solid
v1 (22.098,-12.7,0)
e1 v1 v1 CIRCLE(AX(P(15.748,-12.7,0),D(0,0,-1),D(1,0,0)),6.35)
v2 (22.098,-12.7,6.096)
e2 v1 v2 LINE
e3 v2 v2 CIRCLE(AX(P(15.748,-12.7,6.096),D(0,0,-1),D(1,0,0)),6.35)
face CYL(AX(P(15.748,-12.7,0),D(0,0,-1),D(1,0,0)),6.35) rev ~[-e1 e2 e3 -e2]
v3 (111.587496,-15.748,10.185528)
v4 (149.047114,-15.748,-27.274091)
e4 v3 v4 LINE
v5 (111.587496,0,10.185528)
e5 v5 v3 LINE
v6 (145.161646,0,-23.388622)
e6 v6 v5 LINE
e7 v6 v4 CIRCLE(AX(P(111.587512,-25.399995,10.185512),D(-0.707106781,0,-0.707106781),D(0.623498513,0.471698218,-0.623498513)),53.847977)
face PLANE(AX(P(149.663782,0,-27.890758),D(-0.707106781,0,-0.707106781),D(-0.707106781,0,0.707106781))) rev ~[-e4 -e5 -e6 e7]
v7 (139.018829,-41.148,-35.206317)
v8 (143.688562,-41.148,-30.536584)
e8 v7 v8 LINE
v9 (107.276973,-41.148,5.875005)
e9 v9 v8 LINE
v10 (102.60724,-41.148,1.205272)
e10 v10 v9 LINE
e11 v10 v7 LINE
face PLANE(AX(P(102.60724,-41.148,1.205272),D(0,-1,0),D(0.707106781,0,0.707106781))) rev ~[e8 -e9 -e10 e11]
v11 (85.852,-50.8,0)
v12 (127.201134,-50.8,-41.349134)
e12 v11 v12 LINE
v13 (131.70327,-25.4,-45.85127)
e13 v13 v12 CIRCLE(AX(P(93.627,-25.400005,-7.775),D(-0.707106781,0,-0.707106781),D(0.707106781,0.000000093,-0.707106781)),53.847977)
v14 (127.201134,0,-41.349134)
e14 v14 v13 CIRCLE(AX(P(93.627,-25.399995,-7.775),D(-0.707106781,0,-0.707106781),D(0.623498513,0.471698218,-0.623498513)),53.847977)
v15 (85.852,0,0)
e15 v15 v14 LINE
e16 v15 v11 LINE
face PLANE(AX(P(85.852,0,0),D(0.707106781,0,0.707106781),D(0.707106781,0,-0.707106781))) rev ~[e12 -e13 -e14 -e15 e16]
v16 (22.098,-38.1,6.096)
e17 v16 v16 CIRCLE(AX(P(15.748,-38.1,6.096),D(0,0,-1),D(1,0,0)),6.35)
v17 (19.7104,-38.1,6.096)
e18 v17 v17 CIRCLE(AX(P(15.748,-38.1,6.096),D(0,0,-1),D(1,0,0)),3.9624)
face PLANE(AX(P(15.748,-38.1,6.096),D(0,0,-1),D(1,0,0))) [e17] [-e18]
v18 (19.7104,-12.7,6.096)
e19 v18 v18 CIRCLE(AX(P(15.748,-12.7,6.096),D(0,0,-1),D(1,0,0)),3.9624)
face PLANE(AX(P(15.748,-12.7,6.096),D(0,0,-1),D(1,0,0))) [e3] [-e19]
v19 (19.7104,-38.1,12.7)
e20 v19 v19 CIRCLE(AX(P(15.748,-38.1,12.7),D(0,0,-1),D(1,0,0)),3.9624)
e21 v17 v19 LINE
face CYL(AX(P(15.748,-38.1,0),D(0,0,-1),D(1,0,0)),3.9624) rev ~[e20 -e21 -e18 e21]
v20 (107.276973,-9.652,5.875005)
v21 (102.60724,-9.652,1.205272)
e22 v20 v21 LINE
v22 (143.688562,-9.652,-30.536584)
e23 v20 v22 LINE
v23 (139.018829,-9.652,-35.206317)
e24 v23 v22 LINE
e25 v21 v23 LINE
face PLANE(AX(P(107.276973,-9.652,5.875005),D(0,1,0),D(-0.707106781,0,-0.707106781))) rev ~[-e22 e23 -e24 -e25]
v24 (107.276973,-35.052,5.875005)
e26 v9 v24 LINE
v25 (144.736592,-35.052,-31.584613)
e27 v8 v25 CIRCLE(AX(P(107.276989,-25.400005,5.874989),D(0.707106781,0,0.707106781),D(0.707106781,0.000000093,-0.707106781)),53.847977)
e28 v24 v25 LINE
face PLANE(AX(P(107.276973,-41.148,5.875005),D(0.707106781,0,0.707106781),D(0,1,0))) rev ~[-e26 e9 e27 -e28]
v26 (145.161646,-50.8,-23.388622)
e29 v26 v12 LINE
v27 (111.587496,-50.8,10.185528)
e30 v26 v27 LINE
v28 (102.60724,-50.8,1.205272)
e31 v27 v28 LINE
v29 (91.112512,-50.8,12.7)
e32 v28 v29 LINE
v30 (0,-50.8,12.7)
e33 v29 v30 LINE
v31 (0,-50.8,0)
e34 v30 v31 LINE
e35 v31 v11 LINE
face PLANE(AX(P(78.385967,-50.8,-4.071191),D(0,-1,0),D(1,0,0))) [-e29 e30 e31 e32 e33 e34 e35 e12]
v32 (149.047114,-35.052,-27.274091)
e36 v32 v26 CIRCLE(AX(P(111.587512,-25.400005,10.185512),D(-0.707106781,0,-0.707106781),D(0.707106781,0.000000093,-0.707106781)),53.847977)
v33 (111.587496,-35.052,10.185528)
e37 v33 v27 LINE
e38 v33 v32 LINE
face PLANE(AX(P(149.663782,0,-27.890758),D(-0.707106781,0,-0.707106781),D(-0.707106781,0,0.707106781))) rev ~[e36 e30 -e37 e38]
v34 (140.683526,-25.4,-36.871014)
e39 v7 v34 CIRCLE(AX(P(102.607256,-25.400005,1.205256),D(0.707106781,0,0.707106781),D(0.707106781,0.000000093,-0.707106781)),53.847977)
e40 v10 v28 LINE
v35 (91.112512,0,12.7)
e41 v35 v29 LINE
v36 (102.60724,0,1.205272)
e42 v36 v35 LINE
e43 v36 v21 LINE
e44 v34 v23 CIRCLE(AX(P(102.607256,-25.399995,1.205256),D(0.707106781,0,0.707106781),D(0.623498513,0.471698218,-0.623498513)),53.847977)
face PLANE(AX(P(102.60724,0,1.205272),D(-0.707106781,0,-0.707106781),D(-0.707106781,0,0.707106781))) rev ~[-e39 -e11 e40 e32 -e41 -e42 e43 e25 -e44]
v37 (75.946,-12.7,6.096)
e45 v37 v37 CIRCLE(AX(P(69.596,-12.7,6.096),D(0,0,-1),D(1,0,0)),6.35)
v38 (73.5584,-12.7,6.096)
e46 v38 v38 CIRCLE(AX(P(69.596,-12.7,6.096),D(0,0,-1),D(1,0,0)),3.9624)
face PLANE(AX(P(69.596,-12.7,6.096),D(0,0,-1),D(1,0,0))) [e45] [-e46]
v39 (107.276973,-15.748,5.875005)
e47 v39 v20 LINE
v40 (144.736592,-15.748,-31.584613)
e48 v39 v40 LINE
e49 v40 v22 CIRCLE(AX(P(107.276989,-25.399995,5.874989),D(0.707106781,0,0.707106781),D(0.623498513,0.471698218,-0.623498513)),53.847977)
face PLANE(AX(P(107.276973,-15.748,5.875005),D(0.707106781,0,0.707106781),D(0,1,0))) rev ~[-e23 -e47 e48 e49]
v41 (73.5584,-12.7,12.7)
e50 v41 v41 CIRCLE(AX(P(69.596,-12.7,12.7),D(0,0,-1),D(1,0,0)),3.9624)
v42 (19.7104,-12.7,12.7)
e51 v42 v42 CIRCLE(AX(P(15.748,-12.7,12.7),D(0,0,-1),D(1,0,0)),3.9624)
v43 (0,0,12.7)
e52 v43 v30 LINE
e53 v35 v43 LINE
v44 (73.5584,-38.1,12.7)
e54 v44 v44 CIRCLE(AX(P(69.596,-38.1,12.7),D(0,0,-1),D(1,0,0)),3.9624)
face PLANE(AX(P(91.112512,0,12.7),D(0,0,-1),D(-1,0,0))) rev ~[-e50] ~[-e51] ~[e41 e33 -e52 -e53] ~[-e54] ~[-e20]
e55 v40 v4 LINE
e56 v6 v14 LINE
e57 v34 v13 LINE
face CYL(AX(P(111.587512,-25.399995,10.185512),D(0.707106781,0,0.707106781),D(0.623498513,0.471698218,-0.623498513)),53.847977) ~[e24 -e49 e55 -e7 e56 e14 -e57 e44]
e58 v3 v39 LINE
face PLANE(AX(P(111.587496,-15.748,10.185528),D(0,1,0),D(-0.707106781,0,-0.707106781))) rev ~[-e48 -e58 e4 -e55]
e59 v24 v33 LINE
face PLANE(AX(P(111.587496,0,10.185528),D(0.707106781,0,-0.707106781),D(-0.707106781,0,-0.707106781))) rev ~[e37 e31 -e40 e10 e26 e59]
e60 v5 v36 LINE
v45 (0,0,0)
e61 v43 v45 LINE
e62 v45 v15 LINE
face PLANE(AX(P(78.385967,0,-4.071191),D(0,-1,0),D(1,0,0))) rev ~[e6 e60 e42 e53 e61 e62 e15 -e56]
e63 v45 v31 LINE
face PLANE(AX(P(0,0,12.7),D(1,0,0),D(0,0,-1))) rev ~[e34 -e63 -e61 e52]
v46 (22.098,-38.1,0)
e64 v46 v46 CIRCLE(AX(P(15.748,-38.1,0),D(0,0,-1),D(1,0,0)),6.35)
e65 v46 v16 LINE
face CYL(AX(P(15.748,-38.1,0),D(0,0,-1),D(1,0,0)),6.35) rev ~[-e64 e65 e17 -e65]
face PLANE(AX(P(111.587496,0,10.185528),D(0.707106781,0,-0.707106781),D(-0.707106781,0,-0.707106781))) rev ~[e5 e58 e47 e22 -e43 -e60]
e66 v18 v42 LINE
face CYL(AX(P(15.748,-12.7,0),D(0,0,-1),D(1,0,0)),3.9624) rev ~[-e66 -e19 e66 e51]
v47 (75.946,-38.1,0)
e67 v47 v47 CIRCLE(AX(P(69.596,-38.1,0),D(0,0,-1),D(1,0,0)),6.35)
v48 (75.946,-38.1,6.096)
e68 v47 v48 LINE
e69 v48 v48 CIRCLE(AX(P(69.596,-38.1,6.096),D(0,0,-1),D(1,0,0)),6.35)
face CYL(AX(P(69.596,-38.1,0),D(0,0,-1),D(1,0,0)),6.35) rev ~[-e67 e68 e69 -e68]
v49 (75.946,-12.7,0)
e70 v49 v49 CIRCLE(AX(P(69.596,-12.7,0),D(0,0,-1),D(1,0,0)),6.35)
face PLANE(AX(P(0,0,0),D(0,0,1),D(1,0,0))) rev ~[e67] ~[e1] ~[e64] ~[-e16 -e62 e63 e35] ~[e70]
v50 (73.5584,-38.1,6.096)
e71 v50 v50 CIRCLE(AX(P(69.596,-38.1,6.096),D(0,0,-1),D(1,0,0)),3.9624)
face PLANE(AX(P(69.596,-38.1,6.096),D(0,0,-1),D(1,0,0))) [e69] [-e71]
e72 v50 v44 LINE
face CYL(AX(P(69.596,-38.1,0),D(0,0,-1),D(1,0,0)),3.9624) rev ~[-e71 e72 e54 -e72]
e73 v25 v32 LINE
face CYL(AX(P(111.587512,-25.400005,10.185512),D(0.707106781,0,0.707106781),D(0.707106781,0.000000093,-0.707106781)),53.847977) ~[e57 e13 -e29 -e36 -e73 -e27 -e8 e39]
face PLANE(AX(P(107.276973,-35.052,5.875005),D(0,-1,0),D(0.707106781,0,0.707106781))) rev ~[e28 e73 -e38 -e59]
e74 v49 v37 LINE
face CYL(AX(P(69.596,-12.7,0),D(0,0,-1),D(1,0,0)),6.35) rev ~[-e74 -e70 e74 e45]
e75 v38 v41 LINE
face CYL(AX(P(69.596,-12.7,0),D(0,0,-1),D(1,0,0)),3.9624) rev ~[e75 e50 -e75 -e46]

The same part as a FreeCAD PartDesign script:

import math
import FreeCAD as App
import Part
import Sketcher

V = App.Vector
Q = App.Units.Quantity


def add_polygon(sketch, points):
    """Adds a closed chain of lines whose ends are joined by coincident constraints."""
    first, n = sketch.GeometryCount, len(points)
    for a, b in zip(points, points[1:] + points[:1]):
        sketch.addGeometry(Part.LineSegment(App.Vector(*a, 0), App.Vector(*b, 0)), False)
    for i in range(n):
        sketch.addConstraint(Sketcher.Constraint("Coincident", first + i, 2, first + (i + 1) % n, 1))

doc = App.newDocument("Part")
body = doc.addObject("PartDesign::Body", "Body")

# Sketch on XZ plane
sketch1 = body.newObject("Sketcher::SketchObject", "Sketch")
sketch1.AttachmentSupport = (doc.getObject("XZ_Plane"), [""])
sketch1.MapMode = "FlatFace"
add_polygon(sketch1, [(0, 13), (0, 0), (86, 0), (132, -46), (150, -28), (112, 10), (103, 1), (91, 13)])  # lines 0-7
sketch1.addConstraint([
    Sketcher.Constraint("Vertical", 0),
    Sketcher.Constraint("Horizontal", 1),
    Sketcher.Constraint("Horizontal", 7),
    Sketcher.Constraint("Coincident", 0, 2, -1, 1),
    Sketcher.Constraint("Perpendicular", 2, 3),
    Sketcher.Constraint("Perpendicular", 3, 4),
    Sketcher.Constraint("Perpendicular", 4, 5),
    Sketcher.Constraint("Perpendicular", 5, 6),
    Sketcher.Constraint("Distance", 3, Q("1 in")),
    Sketcher.Constraint("DistanceY", 0, 2, 0, 1, Q("0.5 in")),
    Sketcher.Constraint("Angle", 2, Q("-45 deg")),
    Sketcher.Constraint("Distance", 5, Q("0.5 in")),
    Sketcher.Constraint("DistanceX", 1, 1, 1, 2, Q("3.38 in")),
    Sketcher.Constraint("Distance", 4, Q("2.12 in")),
    Sketcher.Constraint("Distance", 6, Q("0.64 in")),
])
pad1 = body.newObject("PartDesign::Pad", "Pad")
pad1.Profile = sketch1
pad1.Length = Q("2 in")

# Sketch on an angled plane
sketch2 = body.newObject("Sketcher::SketchObject", "Sketch001")
sketch2.Placement = App.Placement(V(60.886512, 0, 60.886512), App.Rotation(V(0.707106781, 0, -0.707106781), V(0, 0.999999999, 0), V(0.707106781, 0, 0.707106781), "ZXY"))
sketch2.addGeometry([
    Part.LineSegment(V(126, -51, 0), V(126, -25, 0)),  # 0
    Part.ArcOfCircle(Part.Circle(V(72, -25, 0), V(0, 0, 1), 54), math.radians(-28), math.radians(0)),  # 1
    Part.LineSegment(V(119, -51, 0), V(126, -51, 0)),  # 2
    Part.LineSegment(V(126, -25, 0), V(126, 0, 0)),  # 3
    Part.LineSegment(V(126, 0, 0), V(119, 0, 0)),  # 4
    Part.ArcOfCircle(Part.Circle(V(72, -25, 0), V(0, 0, 1), 54), math.radians(0), math.radians(28)),  # 5
], False)
sketch2.addConstraint([
    Sketcher.Constraint("Tangent", 0, 2, 1, 2),
    Sketcher.Constraint("Coincident", 1, 1, 2, 1),
    Sketcher.Constraint("Coincident", 2, 2, 0, 1),
    Sketcher.Constraint("Coincident", 3, 2, 4, 1),
    Sketcher.Constraint("Coincident", 4, 2, 5, 2),
    Sketcher.Constraint("Tangent", 5, 1, 3, 1),
    Sketcher.Constraint("Vertical", 0),
    Sketcher.Constraint("Horizontal", 2),
    Sketcher.Constraint("Vertical", 3),
    Sketcher.Constraint("Horizontal", 4),
    Sketcher.Constraint("Coincident", 5, 3, 1, 3),
    Sketcher.Constraint("Equal", 1, 5),
    Sketcher.Constraint("PointOnObject", 3, 2, -1),
    Sketcher.Constraint("Vertical", 1, 1, 4, 2),
    Sketcher.Constraint("DistanceY", 0, 1, 0, 2, Q("1 in")),
    Sketcher.Constraint("Radius", 1, 53.847977),
    Sketcher.Constraint("DistanceX", -1, 1, 1, 3, 71.702042),
])
pocket1 = body.newObject("PartDesign::Pocket", "Pocket")
pocket1.Profile = sketch2
pocket1.Length = Q("1 in")

# Sketch on an angled plane
sketch3 = body.newObject("Sketcher::SketchObject", "Sketch002")
sketch3.Placement = App.Placement(V(50.700984, 0, -50.700984), App.Rotation(V(0, -1, 0), V(0.707106781, 0, 0.707106781), V(-0.707106781, 0, 0.707106781), "ZXY"))
add_polygon(sketch3, [(41, 80), (35, 80), (35, 86), (16, 86), (16, 80), (10, 80), (10, 73), (41, 73)])  # lines 0-7
sketch3.addConstraint([
    Sketcher.Constraint("Horizontal", 0),
    Sketcher.Constraint("Vertical", 1),
    Sketcher.Constraint("Horizontal", 2),
    Sketcher.Constraint("Vertical", 3),
    Sketcher.Constraint("Horizontal", 4),
    Sketcher.Constraint("Vertical", 5),
    Sketcher.Constraint("Horizontal", 6),
    Sketcher.Constraint("Vertical", 7),
    Sketcher.Constraint("Horizontal", 0, 2, 3, 2),
    Sketcher.Constraint("Equal", 0, 4),
    Sketcher.Constraint("Equal", 4, 1),
    Sketcher.Constraint("DistanceX", 4, 2, 0, 2, Q("1 in")),
    Sketcher.Constraint("DistanceX", 0, 2, 0, 1, Q("0.24 in")),
    Sketcher.Constraint("DistanceY", 5, 2, 5, 1, Q("0.26 in")),
    Sketcher.Constraint("DistanceX", -1, 1, 0, 2, Q("1.38 in")),
    Sketcher.Constraint("DistanceY", -1, 1, 0, 2, 80.010531),
])
pocket2 = body.newObject("PartDesign::Pocket", "Pocket001")
pocket2.Profile = sketch3
pocket2.Type = "ThroughAll"

# Sketch on XY plane
sketch4 = body.newObject("Sketcher::SketchObject", "Sketch003")
sketch4.AttachmentSupport = (doc.getObject("XY_Plane"), [""])
sketch4.MapMode = "FlatFace"
sketch4.addGeometry([
    Part.Circle(V(15.7, -12.7, 0), V(0, 0, 1), 4),
    Part.Circle(V(15.7, -38.1, 0), V(0, 0, 1), 4),
    Part.Circle(V(69.6, -38.1, 0), V(0, 0, 1), 4),
    Part.Circle(V(69.6, -12.7, 0), V(0, 0, 1), 4),
], False)
sketch4.addConstraint([
    Sketcher.Constraint("Equal", 0, 1),
    Sketcher.Constraint("Equal", 1, 2),
    Sketcher.Constraint("Equal", 2, 3),
    Sketcher.Constraint("Horizontal", 1, 3, 2, 3),
    Sketcher.Constraint("Horizontal", 0, 3, 3, 3),
    Sketcher.Constraint("Vertical", 0, 3, 1, 3),
    Sketcher.Constraint("Vertical", 2, 3, 3, 3),
    Sketcher.Constraint("Diameter", 0, Q("0.312 in")),
    Sketcher.Constraint("DistanceY", 1, 3, 0, 3, Q("1 in")),
    Sketcher.Constraint("DistanceY", 0, 3, -1, 1, Q("0.5 in")),
    Sketcher.Constraint("DistanceX", -1, 1, 0, 3, Q("0.62 in")),
    Sketcher.Constraint("DistanceX", -1, 1, 2, 3, Q("2.74 in")),
])
pocket3 = body.newObject("PartDesign::Pocket", "Pocket002")
pocket3.Profile = sketch4
pocket3.Type = "ThroughAll"
pocket3.Reversed = True

# Sketch on XY plane
sketch5 = body.newObject("Sketcher::SketchObject", "Sketch004")
sketch5.AttachmentSupport = (doc.getObject("XY_Plane"), [""])
sketch5.MapMode = "FlatFace"
sketch5.addGeometry([
    Part.Circle(V(15.7, -12.7, 0), V(0, 0, 1), 6.3),  # 0
    Part.Circle(V(15.7, -12.7, 0), V(0, 0, 1), 4),  # 1
    Part.Circle(V(15.7, -38.1, 0), V(0, 0, 1), 6.3),  # 2
    Part.Circle(V(15.7, -38.1, 0), V(0, 0, 1), 4),  # 3
    Part.Circle(V(69.6, -12.7, 0), V(0, 0, 1), 6.3),  # 4
    Part.Circle(V(69.6, -12.7, 0), V(0, 0, 1), 4),  # 5
    Part.Circle(V(69.6, -38.1, 0), V(0, 0, 1), 6.3),  # 6
    Part.Circle(V(69.6, -38.1, 0), V(0, 0, 1), 4),  # 7
], False)
sketch5.addConstraint([
    Sketcher.Constraint("Coincident", 1, 3, 0, 3),
    Sketcher.Constraint("Coincident", 3, 3, 2, 3),
    Sketcher.Constraint("Coincident", 5, 3, 4, 3),
    Sketcher.Constraint("Coincident", 7, 3, 6, 3),
    Sketcher.Constraint("Equal", 0, 2),
    Sketcher.Constraint("Equal", 1, 3),
    Sketcher.Constraint("Equal", 2, 4),
    Sketcher.Constraint("Equal", 3, 5),
    Sketcher.Constraint("Equal", 4, 6),
    Sketcher.Constraint("Equal", 5, 7),
    Sketcher.Constraint("Horizontal", 1, 3, 4, 3),
    Sketcher.Constraint("Horizontal", 3, 3, 6, 3),
    Sketcher.Constraint("Vertical", 1, 3, 2, 3),
    Sketcher.Constraint("Vertical", 5, 3, 6, 3),
    Sketcher.Constraint("Diameter", 0, Q("0.5 in")),
    Sketcher.Constraint("Diameter", 1, Q("0.312 in")),
    Sketcher.Constraint("DistanceY", 2, 3, 0, 3, Q("1 in")),
    Sketcher.Constraint("DistanceY", 0, 3, -1, 1, Q("0.5 in")),
    Sketcher.Constraint("DistanceX", -1, 1, 0, 3, Q("0.62 in")),
    Sketcher.Constraint("DistanceX", -1, 1, 4, 3, Q("2.74 in")),
])
pocket4 = body.newObject("PartDesign::Pocket", "Pocket003")
pocket4.Profile = sketch5
pocket4.Length = Q("0.24 in")
pocket4.Reversed = True

doc.recompute()
